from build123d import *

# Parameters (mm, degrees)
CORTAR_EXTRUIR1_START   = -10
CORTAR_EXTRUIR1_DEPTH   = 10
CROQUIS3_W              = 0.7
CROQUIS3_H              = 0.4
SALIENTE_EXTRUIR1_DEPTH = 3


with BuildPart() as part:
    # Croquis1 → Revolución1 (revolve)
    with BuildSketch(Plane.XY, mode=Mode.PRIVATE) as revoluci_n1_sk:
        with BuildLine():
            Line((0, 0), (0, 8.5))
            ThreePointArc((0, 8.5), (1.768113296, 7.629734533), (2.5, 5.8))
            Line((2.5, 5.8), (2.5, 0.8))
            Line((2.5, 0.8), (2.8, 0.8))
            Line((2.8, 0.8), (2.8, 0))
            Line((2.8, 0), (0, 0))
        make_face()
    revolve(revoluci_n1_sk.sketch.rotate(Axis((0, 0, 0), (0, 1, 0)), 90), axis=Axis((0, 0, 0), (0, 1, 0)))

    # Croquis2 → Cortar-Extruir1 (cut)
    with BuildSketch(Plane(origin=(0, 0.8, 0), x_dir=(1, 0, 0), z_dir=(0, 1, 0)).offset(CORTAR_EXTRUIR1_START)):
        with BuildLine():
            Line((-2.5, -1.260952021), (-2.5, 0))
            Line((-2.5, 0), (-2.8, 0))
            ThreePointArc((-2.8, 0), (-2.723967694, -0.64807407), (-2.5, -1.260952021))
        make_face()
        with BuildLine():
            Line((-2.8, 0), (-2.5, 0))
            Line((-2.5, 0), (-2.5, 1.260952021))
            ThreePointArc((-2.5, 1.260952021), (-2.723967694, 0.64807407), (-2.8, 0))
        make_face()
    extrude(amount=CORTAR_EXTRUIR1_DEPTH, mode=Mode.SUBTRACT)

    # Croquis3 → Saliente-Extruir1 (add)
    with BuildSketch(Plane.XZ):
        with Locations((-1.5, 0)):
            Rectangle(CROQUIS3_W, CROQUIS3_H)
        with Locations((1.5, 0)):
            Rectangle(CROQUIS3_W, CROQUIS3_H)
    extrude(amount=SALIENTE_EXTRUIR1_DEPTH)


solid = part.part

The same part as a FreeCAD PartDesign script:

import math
import FreeCAD as App
import Part
import Sketcher

V = App.Vector

doc = App.newDocument("Part")
body = doc.addObject("PartDesign::Body", "Body")

# Sketch on XY plane
sketch1 = body.newObject("Sketcher::SketchObject", "Sketch")
sketch1.AttachmentSupport = (doc.getObject("XY_Plane"), [""])
sketch1.MapMode = "FlatFace"
sketch1.addGeometry([
    Part.LineSegment(V(0, 8.5, 0), V(0, 0, 0)),  # 0
    Part.LineSegment(V(0, 0, 0), V(2.8, 0, 0)),  # 1
    Part.LineSegment(V(2.8, 0, 0), V(2.8, 0.8, 0)),  # 2
    Part.LineSegment(V(2.8, 0.8, 0), V(2.5, 0.8, 0)),  # 3
    Part.LineSegment(V(2.5, 0.8, 0), V(2.5, 5.8, 0)),  # 4
    Part.ArcOfCircle(Part.Circle(V(-0.25, 5.76, 0), V(0, 0, 1), 2.75), math.radians(1), math.radians(85)),  # 5
], False)
sketch1.addConstraint([
    Sketcher.Constraint("Coincident", 0, 2, 1, 1),
    Sketcher.Constraint("Coincident", 1, 2, 2, 1),
    Sketcher.Constraint("Coincident", 2, 2, 3, 1),
    Sketcher.Constraint("Coincident", 3, 2, 4, 1),
    Sketcher.Constraint("Coincident", 4, 2, 5, 1),
    Sketcher.Constraint("Coincident", 5, 2, 0, 1),
    Sketcher.Constraint("Vertical", 0),
    Sketcher.Constraint("Horizontal", 1),
    Sketcher.Constraint("Vertical", 2),
    Sketcher.Constraint("Horizontal", 3),
    Sketcher.Constraint("Vertical", 4),
    Sketcher.Constraint("Coincident", 0, 2, -1, 1),
    Sketcher.Constraint("DistanceY", 4, 1, 4, 2, 5.0),
    Sketcher.Constraint("Radius", 5, 2.75),
    Sketcher.Constraint("DistanceX", 1, 1, 1, 2, 2.8),
    Sketcher.Constraint("DistanceX", 3, 2, 3, 1, 0.3),
    Sketcher.Constraint("DistanceY", 0, 2, 0, 1, 8.5),
    Sketcher.Constraint("DistanceY", 2, 1, 2, 2, 0.8),
])
revolution = body.newObject("PartDesign::Revolution", "Revolution")
revolution.Profile = sketch1
revolution.ReferenceAxis = (sketch1, ["V_Axis"])
revolution.Angle = 360

# Sketch on XZ plane
sketch2 = body.newObject("Sketcher::SketchObject", "Sketch001")
sketch2.AttachmentSupport = (doc.getObject("XZ_Plane"), [""])
sketch2.MapMode = "FlatFace"
sketch2.AttachmentOffset = App.Placement(V(0, 0, 9.2), App.Rotation())
sketch2.addGeometry([
    Part.LineSegment(V(-2.5, 1.3, 0), V(-2.5, -1.3, 0)),
    Part.ArcOfCircle(Part.Circle(V(0, 0, 0), V(0, 0, 1), 2.8), math.radians(-180), math.radians(-153)),
    Part.ArcOfCircle(Part.Circle(V(0, 0, 0), V(0, 0, 1), 2.8), math.radians(153), math.radians(180)),
], False)
sketch2.addConstraint([
    Sketcher.Constraint("Coincident", 0, 2, 1, 2),
    Sketcher.Constraint("Tangent", 1, 1, 2, 2),
    Sketcher.Constraint("Coincident", 2, 1, 0, 1),
    Sketcher.Constraint("Vertical", 0),
    Sketcher.Constraint("Coincident", 1, 3, -1, 1),
    Sketcher.Constraint("Equal", 1, 2),
    Sketcher.Constraint("PointOnObject", 1, 1, -1),
    Sketcher.Constraint("Radius", 1, 2.8),
    Sketcher.Constraint("DistanceX", 0, 2, -1, 1, 2.5),
])
pocket1 = body.newObject("PartDesign::Pocket", "Pocket")
pocket1.Profile = sketch2
pocket1.Length = 10

# Sketch on XZ plane
sketch3 = body.newObject("Sketcher::SketchObject", "Sketch002")
sketch3.AttachmentSupport = (doc.getObject("XZ_Plane"), [""])
sketch3.MapMode = "FlatFace"
sketch3.addGeometry([
    Part.LineSegment(V(-1.85, 0.2, 0), V(-1.85, -0.2, 0)),  # 0
    Part.LineSegment(V(-1.85, -0.2, 0), V(-1.15, -0.2, 0)),  # 1
    Part.LineSegment(V(-1.15, -0.2, 0), V(-1.15, 0.2, 0)),  # 2
    Part.LineSegment(V(-1.15, 0.2, 0), V(-1.85, 0.2, 0)),  # 3
    Part.LineSegment(V(1.15, 0.2, 0), V(1.15, -0.2, 0)),  # 4
    Part.LineSegment(V(1.15, -0.2, 0), V(1.85, -0.2, 0)),  # 5
    Part.LineSegment(V(1.85, -0.2, 0), V(1.85, 0.2, 0)),  # 6
    Part.LineSegment(V(1.85, 0.2, 0), V(1.15, 0.2, 0)),  # 7
], False)
sketch3.addConstraint([
    Sketcher.Constraint("Coincident", 0, 2, 1, 1),
    Sketcher.Constraint("Coincident", 1, 2, 2, 1),
    Sketcher.Constraint("Coincident", 2, 2, 3, 1),
    Sketcher.Constraint("Coincident", 3, 2, 0, 1),
    Sketcher.Constraint("Coincident", 4, 2, 5, 1),
    Sketcher.Constraint("Coincident", 5, 2, 6, 1),
    Sketcher.Constraint("Coincident", 6, 2, 7, 1),
    Sketcher.Constraint("Coincident", 7, 2, 4, 1),
    Sketcher.Constraint("Vertical", 0),
    Sketcher.Constraint("Horizontal", 1),
    Sketcher.Constraint("Vertical", 2),
    Sketcher.Constraint("Horizontal", 3),
    Sketcher.Constraint("Vertical", 4),
    Sketcher.Constraint("Horizontal", 5),
    Sketcher.Constraint("Vertical", 6),
    Sketcher.Constraint("Horizontal", 7),
    Sketcher.Constraint("Symmetric", 2, 2, 4, 2, -1, 1),
    Sketcher.Constraint("Symmetric", 0, 2, 6, 2, -1, 1),
    Sketcher.Constraint("Horizontal", 1, 2, 4, 2),
    Sketcher.Constraint("DistanceX", 1, 1, 1, 2, 0.7),
    Sketcher.Constraint("DistanceY", 0, 2, 0, 1, 0.4),
    Sketcher.Constraint("DistanceX", 0, 2, 4, 2, 3.0),
])
pad1 = body.newObject("PartDesign::Pad", "Pad")
pad1.Profile = sketch3
pad1.Length = 3

doc.recompute()
